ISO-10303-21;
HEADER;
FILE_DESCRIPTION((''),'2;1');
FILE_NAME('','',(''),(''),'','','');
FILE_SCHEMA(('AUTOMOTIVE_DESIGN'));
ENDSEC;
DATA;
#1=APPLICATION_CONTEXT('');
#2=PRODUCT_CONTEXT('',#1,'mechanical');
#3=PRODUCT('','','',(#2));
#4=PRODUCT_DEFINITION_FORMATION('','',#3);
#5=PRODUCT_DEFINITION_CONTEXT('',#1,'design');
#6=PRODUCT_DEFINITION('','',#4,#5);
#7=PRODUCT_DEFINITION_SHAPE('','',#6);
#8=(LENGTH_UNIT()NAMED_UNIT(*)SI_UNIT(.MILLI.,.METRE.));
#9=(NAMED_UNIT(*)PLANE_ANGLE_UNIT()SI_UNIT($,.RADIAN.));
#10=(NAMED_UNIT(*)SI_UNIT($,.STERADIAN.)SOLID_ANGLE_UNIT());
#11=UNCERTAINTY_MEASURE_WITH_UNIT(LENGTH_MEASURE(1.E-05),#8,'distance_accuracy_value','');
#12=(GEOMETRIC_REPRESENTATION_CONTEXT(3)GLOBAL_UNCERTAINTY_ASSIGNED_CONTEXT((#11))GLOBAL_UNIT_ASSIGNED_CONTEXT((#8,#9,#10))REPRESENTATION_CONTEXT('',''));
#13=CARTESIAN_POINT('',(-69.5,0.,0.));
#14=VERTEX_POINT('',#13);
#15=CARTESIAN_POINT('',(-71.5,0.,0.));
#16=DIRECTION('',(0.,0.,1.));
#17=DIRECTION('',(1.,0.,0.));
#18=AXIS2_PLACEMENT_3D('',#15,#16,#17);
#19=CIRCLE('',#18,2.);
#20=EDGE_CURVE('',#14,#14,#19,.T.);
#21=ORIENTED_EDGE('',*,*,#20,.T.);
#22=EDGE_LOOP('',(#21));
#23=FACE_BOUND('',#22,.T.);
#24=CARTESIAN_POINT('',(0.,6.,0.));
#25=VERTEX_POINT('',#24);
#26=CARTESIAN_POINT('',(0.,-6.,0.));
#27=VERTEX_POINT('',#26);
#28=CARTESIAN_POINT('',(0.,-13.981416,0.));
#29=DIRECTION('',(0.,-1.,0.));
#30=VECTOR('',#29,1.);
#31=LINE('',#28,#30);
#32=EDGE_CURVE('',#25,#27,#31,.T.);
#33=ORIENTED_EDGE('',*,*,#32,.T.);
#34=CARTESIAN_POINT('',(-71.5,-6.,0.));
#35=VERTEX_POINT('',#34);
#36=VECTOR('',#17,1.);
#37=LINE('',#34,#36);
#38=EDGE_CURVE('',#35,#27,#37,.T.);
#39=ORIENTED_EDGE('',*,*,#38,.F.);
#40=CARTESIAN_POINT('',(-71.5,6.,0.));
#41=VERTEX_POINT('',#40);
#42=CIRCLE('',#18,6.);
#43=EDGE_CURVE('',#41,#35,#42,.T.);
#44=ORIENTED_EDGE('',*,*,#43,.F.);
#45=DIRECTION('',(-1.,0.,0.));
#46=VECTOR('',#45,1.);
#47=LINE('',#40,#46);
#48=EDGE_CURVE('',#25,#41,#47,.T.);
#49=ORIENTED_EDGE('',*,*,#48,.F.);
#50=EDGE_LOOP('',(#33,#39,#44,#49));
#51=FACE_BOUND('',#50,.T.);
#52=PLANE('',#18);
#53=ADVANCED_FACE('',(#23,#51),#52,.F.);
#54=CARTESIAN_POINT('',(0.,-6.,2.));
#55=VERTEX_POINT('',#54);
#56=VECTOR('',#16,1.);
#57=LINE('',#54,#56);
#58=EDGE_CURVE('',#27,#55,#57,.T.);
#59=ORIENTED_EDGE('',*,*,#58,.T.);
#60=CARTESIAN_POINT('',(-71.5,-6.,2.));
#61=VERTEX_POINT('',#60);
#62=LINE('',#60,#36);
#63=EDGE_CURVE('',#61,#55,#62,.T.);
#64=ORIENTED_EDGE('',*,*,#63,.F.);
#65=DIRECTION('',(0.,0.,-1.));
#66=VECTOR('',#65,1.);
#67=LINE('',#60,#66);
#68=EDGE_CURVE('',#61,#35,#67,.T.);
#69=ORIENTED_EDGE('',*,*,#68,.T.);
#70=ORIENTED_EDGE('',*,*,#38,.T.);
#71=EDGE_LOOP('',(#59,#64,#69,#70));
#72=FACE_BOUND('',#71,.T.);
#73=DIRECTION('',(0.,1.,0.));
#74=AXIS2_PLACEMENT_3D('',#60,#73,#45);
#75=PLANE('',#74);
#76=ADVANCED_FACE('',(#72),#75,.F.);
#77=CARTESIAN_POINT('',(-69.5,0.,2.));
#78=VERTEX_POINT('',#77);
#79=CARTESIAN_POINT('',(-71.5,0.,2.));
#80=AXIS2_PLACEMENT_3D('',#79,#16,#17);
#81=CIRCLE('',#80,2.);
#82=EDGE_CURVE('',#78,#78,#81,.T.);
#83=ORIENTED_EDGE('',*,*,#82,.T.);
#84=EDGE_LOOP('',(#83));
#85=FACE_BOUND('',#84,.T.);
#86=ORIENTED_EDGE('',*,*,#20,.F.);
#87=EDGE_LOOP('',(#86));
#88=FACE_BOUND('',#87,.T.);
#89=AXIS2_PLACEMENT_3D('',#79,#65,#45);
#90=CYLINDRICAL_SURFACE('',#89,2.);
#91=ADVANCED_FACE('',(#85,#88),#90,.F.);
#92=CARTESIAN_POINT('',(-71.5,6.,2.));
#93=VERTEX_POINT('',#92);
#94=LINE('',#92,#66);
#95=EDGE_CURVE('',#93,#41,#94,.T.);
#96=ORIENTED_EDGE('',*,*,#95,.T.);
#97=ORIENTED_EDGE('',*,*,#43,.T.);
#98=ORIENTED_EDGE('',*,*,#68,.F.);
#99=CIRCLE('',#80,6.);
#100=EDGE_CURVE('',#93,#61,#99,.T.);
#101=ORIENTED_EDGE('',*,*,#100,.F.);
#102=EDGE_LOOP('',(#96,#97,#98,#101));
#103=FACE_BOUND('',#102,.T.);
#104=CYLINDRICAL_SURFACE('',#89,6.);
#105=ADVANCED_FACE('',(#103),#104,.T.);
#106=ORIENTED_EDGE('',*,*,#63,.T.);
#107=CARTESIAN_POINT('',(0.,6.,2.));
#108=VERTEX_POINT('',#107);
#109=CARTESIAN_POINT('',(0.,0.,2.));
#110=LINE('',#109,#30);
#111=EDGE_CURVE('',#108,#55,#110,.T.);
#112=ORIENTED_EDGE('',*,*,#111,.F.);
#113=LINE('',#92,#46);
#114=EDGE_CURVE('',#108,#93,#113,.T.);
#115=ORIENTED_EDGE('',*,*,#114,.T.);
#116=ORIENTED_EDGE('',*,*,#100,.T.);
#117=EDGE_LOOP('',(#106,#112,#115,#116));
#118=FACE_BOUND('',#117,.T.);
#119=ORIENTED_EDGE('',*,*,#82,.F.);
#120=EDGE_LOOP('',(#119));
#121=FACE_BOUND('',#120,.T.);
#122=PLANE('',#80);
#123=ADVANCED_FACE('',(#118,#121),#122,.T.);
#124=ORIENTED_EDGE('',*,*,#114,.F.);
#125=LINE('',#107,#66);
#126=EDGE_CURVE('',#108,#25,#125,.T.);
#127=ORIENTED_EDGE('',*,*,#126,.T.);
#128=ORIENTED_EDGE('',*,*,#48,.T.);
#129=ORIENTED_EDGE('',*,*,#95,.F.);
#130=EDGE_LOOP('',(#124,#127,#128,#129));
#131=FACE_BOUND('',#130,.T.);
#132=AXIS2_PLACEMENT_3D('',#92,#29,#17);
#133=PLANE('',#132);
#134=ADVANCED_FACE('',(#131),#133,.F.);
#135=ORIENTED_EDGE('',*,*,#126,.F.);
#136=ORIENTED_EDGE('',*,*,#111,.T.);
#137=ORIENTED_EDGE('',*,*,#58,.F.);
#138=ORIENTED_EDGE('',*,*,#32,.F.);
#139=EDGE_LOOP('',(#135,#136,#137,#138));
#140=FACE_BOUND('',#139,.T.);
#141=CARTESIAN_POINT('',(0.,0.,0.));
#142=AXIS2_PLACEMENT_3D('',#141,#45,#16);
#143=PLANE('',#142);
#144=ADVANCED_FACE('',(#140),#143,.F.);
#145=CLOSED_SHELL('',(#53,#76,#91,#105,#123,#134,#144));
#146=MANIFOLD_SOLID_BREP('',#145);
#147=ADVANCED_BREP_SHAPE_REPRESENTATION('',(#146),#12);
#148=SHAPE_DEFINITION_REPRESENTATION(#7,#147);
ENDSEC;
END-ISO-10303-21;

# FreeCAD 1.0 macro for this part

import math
import FreeCAD as App
import Part
import Sketcher


def add_polygon(sketch, points):
    """Adds a closed chain of lines whose ends are joined by coincident constraints."""
    first, n = sketch.GeometryCount, len(points)
    for a, b in zip(points, points[1:] + points[:1]):
        sketch.addGeometry(Part.LineSegment(App.Vector(*a, 0), App.Vector(*b, 0)), False)
    for i in range(n):
        sketch.addConstraint(Sketcher.Constraint("Coincident", first + i, 2, first + (i + 1) % n, 1))

doc = App.newDocument("Part")
body = doc.addObject("PartDesign::Body", "Body")

# Sketch on XY plane
sketch1 = doc.addObject("Sketcher::SketchObject", "Sketch")
body.addObject(sketch1)
sketch1.AttachmentSupport = (doc.XY_Plane, [""])
sketch1.MapMode = "FlatFace"
sketch1.addGeometry([
    Part.LineSegment(App.Vector(71.5, 6, 0), App.Vector(-71.5, 6, 0)),  # 0
    Part.ArcOfCircle(Part.Circle(App.Vector(-71.5, 0, 0), App.Vector(0, 0, 1), 6), math.radians(90), math.radians(270)),  # 1
    Part.LineSegment(App.Vector(-71.5, -6, 0), App.Vector(71.5, -6, 0)),  # 2
    Part.ArcOfCircle(Part.Circle(App.Vector(71.5, 0, 0), App.Vector(0, 0, 1), 6), math.radians(-90), math.radians(90)),  # 3
    Part.Circle(App.Vector(71.5, 0, 0), App.Vector(0, 0, 1), 2),  # 4
    Part.Circle(App.Vector(-71.5, 0, 0), App.Vector(0, 0, 1), 2),  # 5
], False)
sketch1.addConstraint([
    Sketcher.Constraint("Tangent", 0, 2, 1, 1),
    Sketcher.Constraint("Tangent", 1, 2, 2, 1),
    Sketcher.Constraint("Tangent", 2, 2, 3, 1),
    Sketcher.Constraint("Tangent", 3, 2, 0, 1),
    Sketcher.Constraint("Horizontal", 0),
    Sketcher.Constraint("Horizontal", 2),
    Sketcher.Constraint("Coincident", 4, 3, 3, 3),
    Sketcher.Constraint("Coincident", 5, 3, 1, 3),
    Sketcher.Constraint("Equal", 4, 5),
    Sketcher.Constraint("Symmetric", 1, 3, 3, 3, -1, 1),
    Sketcher.Constraint("Diameter", 4, 4.0),
    Sketcher.Constraint("Radius", 1, 6.0),
    Sketcher.Constraint("DistanceX", 0, 2, 0, 1, 143.0),
])
pad1 = doc.addObject("PartDesign::Pad", "Pad")
body.addObject(pad1)
pad1.Profile = sketch1
pad1.Length = 2

# Sketch on XY plane
sketch2 = doc.addObject("Sketcher::SketchObject", "Sketch001")
body.addObject(sketch2)
sketch2.AttachmentSupport = (doc.XY_Plane, [""])
sketch2.MapMode = "FlatFace"
sketch2.AttachmentOffset = App.Placement(App.Vector(0, 0, 2), App.Rotation())
add_polygon(sketch2, [(0, 10.962702), (0, -13.981416), (80.234265, -13.981416), (80.234265, 10.962702)])  # lines 0-3
sketch2.addConstraint([
    Sketcher.Constraint("Vertical", 0),
    Sketcher.Constraint("Horizontal", 1),
    Sketcher.Constraint("Vertical", 2),
    Sketcher.Constraint("Horizontal", 3),
    Sketcher.Constraint("PointOnObject", 0, 2, -2),
    Sketcher.Constraint("DistanceY", -1, 1, 2, 2, 10.962702),
    Sketcher.Constraint("DistanceX", 1, 1, 1, 2, 80.234265),
    Sketcher.Constraint("DistanceY", 0, 2, 0, 1, 24.944118),
])
pocket1 = doc.addObject("PartDesign::Pocket", "Pocket")
body.addObject(pocket1)
pocket1.Profile = sketch2
pocket1.Type = "ThroughAll"
pocket1.Midplane = True

doc.recompute()
